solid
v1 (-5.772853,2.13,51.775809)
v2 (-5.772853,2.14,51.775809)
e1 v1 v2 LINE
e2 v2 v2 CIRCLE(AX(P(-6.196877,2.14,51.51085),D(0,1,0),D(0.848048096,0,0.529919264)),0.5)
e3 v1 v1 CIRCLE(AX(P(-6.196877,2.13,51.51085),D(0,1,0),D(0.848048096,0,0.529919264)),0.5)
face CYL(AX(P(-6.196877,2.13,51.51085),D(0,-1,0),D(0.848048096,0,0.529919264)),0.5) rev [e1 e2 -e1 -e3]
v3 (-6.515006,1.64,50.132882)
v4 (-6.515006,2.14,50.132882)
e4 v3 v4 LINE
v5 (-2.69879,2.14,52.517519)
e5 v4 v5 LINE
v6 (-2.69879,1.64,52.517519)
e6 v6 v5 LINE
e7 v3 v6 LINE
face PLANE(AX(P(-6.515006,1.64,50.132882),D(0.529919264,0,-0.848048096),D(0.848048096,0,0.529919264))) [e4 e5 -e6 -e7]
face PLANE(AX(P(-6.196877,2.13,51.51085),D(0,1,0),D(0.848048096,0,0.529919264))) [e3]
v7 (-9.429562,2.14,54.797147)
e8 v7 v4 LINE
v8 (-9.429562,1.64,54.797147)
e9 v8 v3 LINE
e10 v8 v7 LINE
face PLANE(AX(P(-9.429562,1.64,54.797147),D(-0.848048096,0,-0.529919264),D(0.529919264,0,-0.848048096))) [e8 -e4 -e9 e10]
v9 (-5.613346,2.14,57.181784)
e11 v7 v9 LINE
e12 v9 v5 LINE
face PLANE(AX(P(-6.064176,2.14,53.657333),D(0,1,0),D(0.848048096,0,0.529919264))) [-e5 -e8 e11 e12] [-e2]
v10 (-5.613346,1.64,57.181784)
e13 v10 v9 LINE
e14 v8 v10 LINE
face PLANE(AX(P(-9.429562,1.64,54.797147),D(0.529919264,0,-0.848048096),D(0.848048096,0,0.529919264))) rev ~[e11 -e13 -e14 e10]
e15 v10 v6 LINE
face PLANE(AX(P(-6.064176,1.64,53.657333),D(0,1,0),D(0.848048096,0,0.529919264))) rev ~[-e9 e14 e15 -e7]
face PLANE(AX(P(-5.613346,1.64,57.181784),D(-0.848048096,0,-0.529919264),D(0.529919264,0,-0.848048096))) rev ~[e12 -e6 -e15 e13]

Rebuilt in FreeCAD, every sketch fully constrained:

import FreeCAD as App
import Part
import Sketcher
Q = App.Units.Quantity


def add_polygon(sketch, points):
    """Adds a closed chain of lines whose ends are joined by coincident constraints."""
    first, n = sketch.GeometryCount, len(points)
    for a, b in zip(points, points[1:] + points[:1]):
        sketch.addGeometry(Part.LineSegment(App.Vector(*a, 0), App.Vector(*b, 0)), False)
    for i in range(n):
        sketch.addConstraint(Sketcher.Constraint("Coincident", first + i, 2, first + (i + 1) % n, 1))

doc = App.newDocument("Part")
params = doc.addObject("Spreadsheet::Sheet", "Params")
for row, (alias, value) in enumerate([
    ("sketch1_diameter", "1 mm"),
    ("pad1_length", "0.01 mm"),
    ("sketch2_width", "4.5 mm"),
    ("sketch2_height", "5.5 mm"),
    ("pad2_length", "0.5 mm"),
], start=1):
    params.set(f"A{row}", alias)
    params.set(f"B{row}", "=" + value)
    params.setAlias(f"B{row}", alias)

body = doc.addObject("PartDesign::Body", "Body")

# Sketch on XY plane
sketch1 = doc.addObject("Sketcher::SketchObject", "Sketch")
body.addObject(sketch1)
sketch1.AttachmentSupport = (doc.XY_Plane, [""])
sketch1.MapMode = "FlatFace"
sketch1.AttachmentOffset = App.Placement(App.Vector(0, 0, 0.49), App.Rotation())
sketch1.addGeometry(Part.Circle(App.Vector(1, 4.5, 0), App.Vector(0, 0, 1), 0.5), False)
sketch1.addConstraint([
    Sketcher.Constraint("Diameter", 0, Q("1 mm")),
    Sketcher.Constraint("DistanceX", -1, 1, 0, 3, Q("1 mm")),
    Sketcher.Constraint("DistanceY", -1, 1, 0, 3, Q("4.5 mm")),
])
sketch1.setExpression("Constraints[0]", "Params.sketch1_diameter")
pad1 = doc.addObject("PartDesign::Pad", "Pad")
body.addObject(pad1)
pad1.Profile = sketch1
pad1.setExpression("Length", "Params.pad1_length")
body2 = doc.addObject("PartDesign::Body", "Body001")

# Sketch on XY plane
sketch2 = doc.addObject("Sketcher::SketchObject", "Sketch001")
body2.addObject(sketch2)
sketch2.AttachmentSupport = (doc.getObject("XY_Plane001"), [""])
sketch2.MapMode = "FlatFace"
add_polygon(sketch2, [(0, 5.5), (0, 0), (4.5, 0), (4.5, 5.5)])  # lines 0-3
sketch2.addConstraint([
    Sketcher.Constraint("Vertical", 0),
    Sketcher.Constraint("Horizontal", 1),
    Sketcher.Constraint("Vertical", 2),
    Sketcher.Constraint("Horizontal", 3),
    Sketcher.Constraint("Coincident", 0, 2, -1, 1),
    Sketcher.Constraint("DistanceX", 1, 1, 1, 2, Q("4.5 mm")),
    Sketcher.Constraint("DistanceY", 0, 2, 0, 1, Q("5.5 mm")),
])
sketch2.setExpression("Constraints[9]", "Params.sketch2_width")
sketch2.setExpression("Constraints[10]", "Params.sketch2_height")
pad2 = doc.addObject("PartDesign::Pad", "Pad001")
body2.addObject(pad2)
pad2.Profile = sketch2
pad2.setExpression("Length", "Params.pad2_length")
doc.recompute()

boolean = doc.addObject("PartDesign::Boolean", "Boolean")
body2.addObject(boolean)
boolean.Type = "Cut"
boolean.addObjects([body])
body3 = doc.addObject("PartDesign::Body", "Body002")
doc.recompute()

body2.Placement = App.Placement(App.Vector(0, 0, 0), App.Rotation(App.Vector(1, 0, 0), 270))
boolean2 = doc.addObject("PartDesign::Boolean", "Boolean001")
body3.addObject(boolean2)
boolean2.Type = "Fuse"
boolean2.addObjects([body2])
body4 = doc.addObject("PartDesign::Body", "Body003")
doc.recompute()

body3.Placement = App.Placement(App.Vector(0, 0, 0), App.Rotation(App.Vector(0, 1, 0), 328))
boolean3 = doc.addObject("PartDesign::Boolean", "Boolean002")
body4.addObject(boolean3)
boolean3.Type = "Fuse"
boolean3.addObjects([body3])
body5 = doc.addObject("PartDesign::Body", "Body004")
doc.recompute()

body4.Placement = App.Placement(App.Vector(-9.429562, 1.64, 54.797147), App.Rotation(App.Vector(0, 0, 1), 0))
boolean4 = doc.addObject("PartDesign::Boolean", "Boolean003")
body5.addObject(boolean4)
boolean4.Type = "Fuse"
boolean4.addObjects([body4])

doc.recompute()
